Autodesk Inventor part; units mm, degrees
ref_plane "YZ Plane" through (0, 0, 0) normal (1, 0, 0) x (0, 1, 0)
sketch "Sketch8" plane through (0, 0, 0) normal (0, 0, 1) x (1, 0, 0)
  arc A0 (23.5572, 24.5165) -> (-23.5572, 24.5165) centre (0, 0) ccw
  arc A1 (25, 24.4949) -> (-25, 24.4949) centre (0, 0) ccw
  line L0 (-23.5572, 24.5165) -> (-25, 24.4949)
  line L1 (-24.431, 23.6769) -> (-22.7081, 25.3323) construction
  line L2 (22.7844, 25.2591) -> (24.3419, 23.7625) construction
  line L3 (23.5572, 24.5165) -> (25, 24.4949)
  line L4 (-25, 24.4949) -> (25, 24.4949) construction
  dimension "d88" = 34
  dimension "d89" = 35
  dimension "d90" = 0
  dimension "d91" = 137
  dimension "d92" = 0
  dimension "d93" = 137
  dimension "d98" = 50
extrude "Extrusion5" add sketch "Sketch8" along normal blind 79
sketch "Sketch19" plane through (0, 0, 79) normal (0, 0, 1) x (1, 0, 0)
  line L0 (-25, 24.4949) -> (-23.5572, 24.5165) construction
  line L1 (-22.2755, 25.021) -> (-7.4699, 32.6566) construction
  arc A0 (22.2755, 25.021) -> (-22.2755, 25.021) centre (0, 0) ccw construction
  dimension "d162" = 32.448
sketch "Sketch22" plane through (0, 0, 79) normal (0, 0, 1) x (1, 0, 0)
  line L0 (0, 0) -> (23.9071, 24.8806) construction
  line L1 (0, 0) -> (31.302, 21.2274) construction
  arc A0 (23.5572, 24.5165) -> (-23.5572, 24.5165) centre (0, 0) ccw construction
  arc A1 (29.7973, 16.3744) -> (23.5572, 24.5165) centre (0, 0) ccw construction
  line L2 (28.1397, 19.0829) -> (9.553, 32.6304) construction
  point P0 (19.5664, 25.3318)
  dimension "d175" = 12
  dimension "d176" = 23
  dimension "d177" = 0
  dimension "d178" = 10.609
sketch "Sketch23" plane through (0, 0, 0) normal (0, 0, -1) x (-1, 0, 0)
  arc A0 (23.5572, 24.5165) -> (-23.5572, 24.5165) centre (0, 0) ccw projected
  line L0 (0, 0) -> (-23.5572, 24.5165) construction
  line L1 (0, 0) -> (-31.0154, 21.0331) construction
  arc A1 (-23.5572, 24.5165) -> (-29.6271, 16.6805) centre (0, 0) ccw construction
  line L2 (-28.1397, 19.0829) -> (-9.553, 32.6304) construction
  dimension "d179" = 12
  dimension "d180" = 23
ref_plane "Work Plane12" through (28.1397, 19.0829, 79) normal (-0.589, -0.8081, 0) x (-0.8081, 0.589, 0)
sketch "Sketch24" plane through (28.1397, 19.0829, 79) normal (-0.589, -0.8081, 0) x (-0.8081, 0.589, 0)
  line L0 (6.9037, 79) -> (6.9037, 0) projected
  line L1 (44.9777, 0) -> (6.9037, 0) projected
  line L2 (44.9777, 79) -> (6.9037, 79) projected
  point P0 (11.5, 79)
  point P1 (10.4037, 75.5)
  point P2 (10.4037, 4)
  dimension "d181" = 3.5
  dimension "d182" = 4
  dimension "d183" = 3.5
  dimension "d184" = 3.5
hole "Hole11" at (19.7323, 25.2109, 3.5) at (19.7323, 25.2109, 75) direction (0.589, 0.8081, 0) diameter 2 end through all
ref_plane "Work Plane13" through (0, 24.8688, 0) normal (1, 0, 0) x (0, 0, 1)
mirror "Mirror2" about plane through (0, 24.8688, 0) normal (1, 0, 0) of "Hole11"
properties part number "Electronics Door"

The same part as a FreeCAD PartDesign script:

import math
import FreeCAD as App
import Part
import Sketcher
from FreeCAD import Vector
Q = App.Units.Quantity

doc = App.newDocument("Part")
body = doc.addObject("PartDesign::Body", "Body")

# Sketch on XY plane
sketch1 = body.newObject("Sketcher::SketchObject", "Sketch")
sketch1.AttachmentSupport = (doc.getObject("XY_Plane"), [""])
sketch1.MapMode = "FlatFace"
sketch1.addGeometry(Part.ArcOfCircle(Part.Circle(Vector(0, 0, 0), Vector(0, 0, 1), 34), math.radians(46), math.radians(134)), False)
sketch1.addGeometry(Part.LineSegment(Vector(23.6, 24.5, 0), Vector(25, 24.5, 0)), False)
sketch1.addGeometry(Part.ArcOfCircle(Part.Circle(Vector(0, 0, 0), Vector(0, 0, 1), 35), math.radians(44), math.radians(136)), False)
sketch1.addGeometry(Part.LineSegment(Vector(-25, 24.5, 0), Vector(-23.6, 24.5, 0)), False)
sketch1.addConstraint(Sketcher.Constraint("Coincident", 0, 1, 1, 1))
sketch1.addConstraint(Sketcher.Constraint("Coincident", 1, 2, 2, 1))
sketch1.addConstraint(Sketcher.Constraint("Coincident", 2, 2, 3, 1))
sketch1.addConstraint(Sketcher.Constraint("Coincident", 3, 2, 0, 2))
sketch1.addConstraint(Sketcher.Constraint("Coincident", 0, 3, -1, 1))
sketch1.addConstraint(Sketcher.Constraint("Coincident", 2, 3, -1, 1))
sketch1.addConstraint(Sketcher.Constraint("Horizontal", 1, 2, 2, 2))
sketch1.addConstraint(Sketcher.Constraint("Horizontal", 0, 1, 3, 2))
sketch1.addConstraint(Sketcher.Constraint("Radius", 0, Q("34 mm")))
sketch1.addConstraint(Sketcher.Constraint("Radius", 2, Q("35 mm")))
sketch1.addConstraint(Sketcher.Constraint("DistanceX", 2, 2, 1, 2, Q("50 mm")))
sketch1.addConstraint(Sketcher.Constraint("Distance", 1, Q("1.443 mm")))
pad1 = body.newObject("PartDesign::Pad", "Pad")
pad1.Profile = sketch1
pad1.Length = 79

# Sketch on an angled plane
sketch2 = body.newObject("Sketcher::SketchObject", "Sketch001")
sketch2.Placement = App.Placement(Vector(18.84621, 25.856744, 0), App.Rotation(Vector(0.808121573, -0.589015724, 0), Vector(0, 0, 1), Vector(-0.589015724, -0.808121573, 0), "ZXY"))
sketch2.addGeometry(Part.Circle(Vector(1.1, 3.5, 0), Vector(0, 0, 1), 1), False)
sketch2.addGeometry(Part.Circle(Vector(1.1, 75, 0), Vector(0, 0, 1), 1), False)
sketch2.addConstraint(Sketcher.Constraint("Equal", 0, 1))
sketch2.addConstraint(Sketcher.Constraint("Vertical", 0, 3, 1, 3))
sketch2.addConstraint(Sketcher.Constraint("Diameter", 0, Q("2 mm")))
sketch2.addConstraint(Sketcher.Constraint("DistanceY", -1, 1, 1, 3, Q("75 mm")))
sketch2.addConstraint(Sketcher.Constraint("DistanceY", -1, 1, 0, 3, Q("3.5 mm")))
sketch2.addConstraint(Sketcher.Constraint("DistanceX", -1, 1, 0, 3, Q("1.0965 mm")))
doc.recompute()
hole = body.newObject("PartDesign::Hole", "Hole")
hole.Profile = sketch2
hole.ThreadType = "None"
hole.Diameter = 2
hole.DepthType = "ThroughAll"
doc.recompute()

mirrored = body.newObject("PartDesign::Mirrored", "Mirrored")
mirrored.Originals = [hole]
mirrored.MirrorPlane = (doc.getObject("YZ_Plane"), [""])
body.Tip = mirrored

doc.recompute()
